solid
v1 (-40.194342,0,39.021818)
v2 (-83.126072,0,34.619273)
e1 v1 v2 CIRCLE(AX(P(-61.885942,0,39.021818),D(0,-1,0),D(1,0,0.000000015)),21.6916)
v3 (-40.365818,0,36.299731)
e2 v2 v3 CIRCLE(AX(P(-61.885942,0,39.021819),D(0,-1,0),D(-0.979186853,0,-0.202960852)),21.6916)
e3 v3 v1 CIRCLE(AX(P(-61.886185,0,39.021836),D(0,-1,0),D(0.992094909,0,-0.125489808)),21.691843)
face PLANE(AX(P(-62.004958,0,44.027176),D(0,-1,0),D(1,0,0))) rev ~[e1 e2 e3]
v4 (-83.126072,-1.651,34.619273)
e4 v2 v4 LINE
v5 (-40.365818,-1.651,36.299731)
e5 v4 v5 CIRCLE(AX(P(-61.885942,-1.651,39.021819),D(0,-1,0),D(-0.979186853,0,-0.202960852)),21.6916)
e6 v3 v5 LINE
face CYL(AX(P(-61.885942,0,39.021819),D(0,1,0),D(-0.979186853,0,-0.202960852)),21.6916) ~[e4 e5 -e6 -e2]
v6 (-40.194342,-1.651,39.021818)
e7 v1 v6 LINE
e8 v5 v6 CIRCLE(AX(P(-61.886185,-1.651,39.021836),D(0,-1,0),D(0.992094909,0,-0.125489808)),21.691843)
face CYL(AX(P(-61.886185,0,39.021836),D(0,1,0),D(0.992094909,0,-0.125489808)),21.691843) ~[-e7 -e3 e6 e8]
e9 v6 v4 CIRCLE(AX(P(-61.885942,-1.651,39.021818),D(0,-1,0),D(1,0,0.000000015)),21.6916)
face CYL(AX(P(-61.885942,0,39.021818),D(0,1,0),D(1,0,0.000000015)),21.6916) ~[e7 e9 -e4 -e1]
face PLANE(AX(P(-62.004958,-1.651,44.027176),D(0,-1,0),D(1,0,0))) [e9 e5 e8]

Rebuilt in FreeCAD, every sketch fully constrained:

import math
import FreeCAD as App
import Part
import Sketcher
from FreeCAD import Vector
Q = App.Units.Quantity

doc = App.newDocument("Part")
body = doc.addObject("PartDesign::Body", "Body")

sketch1 = body.newObject("Sketcher::SketchObject", "Sketch")
sketch1.AttachmentSupport = (doc.getObject("XZ_Plane"), [""])
sketch1.MapMode = "FlatFace"
sketch1.addGeometry(Part.ArcOfCircle(Part.Circle(Vector(-61.886185, 39.021836, 0), Vector(0, 0, 1), 21.691843), math.radians(-7.209042), math.radians(-0.000048)), False)
sketch1.addGeometry(Part.ArcOfCircle(Part.Circle(Vector(-61.885942, 39.021818, 0), Vector(0, 0, 1), 21.6916), math.radians(0.000001), math.radians(191.710153)), False)
sketch1.addGeometry(Part.ArcOfCircle(Part.Circle(Vector(-61.885942, 39.021819, 0), Vector(0, 0, 1), 21.6916), math.radians(-168.289845), math.radians(-7.209077)), False)
sketch1.addConstraint(Sketcher.Constraint("Coincident", 0, 2, 1, 1))
sketch1.addConstraint(Sketcher.Constraint("Coincident", 1, 2, 2, 1))
sketch1.addConstraint(Sketcher.Constraint("Coincident", 2, 2, 0, 1))
sketch1.addConstraint(Sketcher.Constraint("Coincident", 2, 3, 1, 3))
sketch1.addConstraint(Sketcher.Constraint("Radius", 1, Q("0.854 in")))
sketch1.addConstraint(Sketcher.Constraint("Radius", 0, Q("21.691843 mm")))
sketch1.addConstraint(Sketcher.Constraint("DistanceY", -1, 1, 2, 3, Q("39.021819 mm")))
sketch1.addConstraint(Sketcher.Constraint("DistanceY", -1, 1, 0, 2, Q("39.021818 mm")))
sketch1.addConstraint(Sketcher.Constraint("DistanceX", 2, 2, -1, 1, Q("40.365818 mm")))
sketch1.addConstraint(Sketcher.Constraint("DistanceY", -1, 1, 2, 2, Q("36.299731 mm")))
sketch1.addConstraint(Sketcher.Constraint("DistanceX", 1, 2, 2, 3, Q("21.24013 mm")))
pad1 = body.newObject("PartDesign::Pad", "Pad")
pad1.Profile = sketch1
pad1.Length = Q("0.065 in")

doc.recompute()
